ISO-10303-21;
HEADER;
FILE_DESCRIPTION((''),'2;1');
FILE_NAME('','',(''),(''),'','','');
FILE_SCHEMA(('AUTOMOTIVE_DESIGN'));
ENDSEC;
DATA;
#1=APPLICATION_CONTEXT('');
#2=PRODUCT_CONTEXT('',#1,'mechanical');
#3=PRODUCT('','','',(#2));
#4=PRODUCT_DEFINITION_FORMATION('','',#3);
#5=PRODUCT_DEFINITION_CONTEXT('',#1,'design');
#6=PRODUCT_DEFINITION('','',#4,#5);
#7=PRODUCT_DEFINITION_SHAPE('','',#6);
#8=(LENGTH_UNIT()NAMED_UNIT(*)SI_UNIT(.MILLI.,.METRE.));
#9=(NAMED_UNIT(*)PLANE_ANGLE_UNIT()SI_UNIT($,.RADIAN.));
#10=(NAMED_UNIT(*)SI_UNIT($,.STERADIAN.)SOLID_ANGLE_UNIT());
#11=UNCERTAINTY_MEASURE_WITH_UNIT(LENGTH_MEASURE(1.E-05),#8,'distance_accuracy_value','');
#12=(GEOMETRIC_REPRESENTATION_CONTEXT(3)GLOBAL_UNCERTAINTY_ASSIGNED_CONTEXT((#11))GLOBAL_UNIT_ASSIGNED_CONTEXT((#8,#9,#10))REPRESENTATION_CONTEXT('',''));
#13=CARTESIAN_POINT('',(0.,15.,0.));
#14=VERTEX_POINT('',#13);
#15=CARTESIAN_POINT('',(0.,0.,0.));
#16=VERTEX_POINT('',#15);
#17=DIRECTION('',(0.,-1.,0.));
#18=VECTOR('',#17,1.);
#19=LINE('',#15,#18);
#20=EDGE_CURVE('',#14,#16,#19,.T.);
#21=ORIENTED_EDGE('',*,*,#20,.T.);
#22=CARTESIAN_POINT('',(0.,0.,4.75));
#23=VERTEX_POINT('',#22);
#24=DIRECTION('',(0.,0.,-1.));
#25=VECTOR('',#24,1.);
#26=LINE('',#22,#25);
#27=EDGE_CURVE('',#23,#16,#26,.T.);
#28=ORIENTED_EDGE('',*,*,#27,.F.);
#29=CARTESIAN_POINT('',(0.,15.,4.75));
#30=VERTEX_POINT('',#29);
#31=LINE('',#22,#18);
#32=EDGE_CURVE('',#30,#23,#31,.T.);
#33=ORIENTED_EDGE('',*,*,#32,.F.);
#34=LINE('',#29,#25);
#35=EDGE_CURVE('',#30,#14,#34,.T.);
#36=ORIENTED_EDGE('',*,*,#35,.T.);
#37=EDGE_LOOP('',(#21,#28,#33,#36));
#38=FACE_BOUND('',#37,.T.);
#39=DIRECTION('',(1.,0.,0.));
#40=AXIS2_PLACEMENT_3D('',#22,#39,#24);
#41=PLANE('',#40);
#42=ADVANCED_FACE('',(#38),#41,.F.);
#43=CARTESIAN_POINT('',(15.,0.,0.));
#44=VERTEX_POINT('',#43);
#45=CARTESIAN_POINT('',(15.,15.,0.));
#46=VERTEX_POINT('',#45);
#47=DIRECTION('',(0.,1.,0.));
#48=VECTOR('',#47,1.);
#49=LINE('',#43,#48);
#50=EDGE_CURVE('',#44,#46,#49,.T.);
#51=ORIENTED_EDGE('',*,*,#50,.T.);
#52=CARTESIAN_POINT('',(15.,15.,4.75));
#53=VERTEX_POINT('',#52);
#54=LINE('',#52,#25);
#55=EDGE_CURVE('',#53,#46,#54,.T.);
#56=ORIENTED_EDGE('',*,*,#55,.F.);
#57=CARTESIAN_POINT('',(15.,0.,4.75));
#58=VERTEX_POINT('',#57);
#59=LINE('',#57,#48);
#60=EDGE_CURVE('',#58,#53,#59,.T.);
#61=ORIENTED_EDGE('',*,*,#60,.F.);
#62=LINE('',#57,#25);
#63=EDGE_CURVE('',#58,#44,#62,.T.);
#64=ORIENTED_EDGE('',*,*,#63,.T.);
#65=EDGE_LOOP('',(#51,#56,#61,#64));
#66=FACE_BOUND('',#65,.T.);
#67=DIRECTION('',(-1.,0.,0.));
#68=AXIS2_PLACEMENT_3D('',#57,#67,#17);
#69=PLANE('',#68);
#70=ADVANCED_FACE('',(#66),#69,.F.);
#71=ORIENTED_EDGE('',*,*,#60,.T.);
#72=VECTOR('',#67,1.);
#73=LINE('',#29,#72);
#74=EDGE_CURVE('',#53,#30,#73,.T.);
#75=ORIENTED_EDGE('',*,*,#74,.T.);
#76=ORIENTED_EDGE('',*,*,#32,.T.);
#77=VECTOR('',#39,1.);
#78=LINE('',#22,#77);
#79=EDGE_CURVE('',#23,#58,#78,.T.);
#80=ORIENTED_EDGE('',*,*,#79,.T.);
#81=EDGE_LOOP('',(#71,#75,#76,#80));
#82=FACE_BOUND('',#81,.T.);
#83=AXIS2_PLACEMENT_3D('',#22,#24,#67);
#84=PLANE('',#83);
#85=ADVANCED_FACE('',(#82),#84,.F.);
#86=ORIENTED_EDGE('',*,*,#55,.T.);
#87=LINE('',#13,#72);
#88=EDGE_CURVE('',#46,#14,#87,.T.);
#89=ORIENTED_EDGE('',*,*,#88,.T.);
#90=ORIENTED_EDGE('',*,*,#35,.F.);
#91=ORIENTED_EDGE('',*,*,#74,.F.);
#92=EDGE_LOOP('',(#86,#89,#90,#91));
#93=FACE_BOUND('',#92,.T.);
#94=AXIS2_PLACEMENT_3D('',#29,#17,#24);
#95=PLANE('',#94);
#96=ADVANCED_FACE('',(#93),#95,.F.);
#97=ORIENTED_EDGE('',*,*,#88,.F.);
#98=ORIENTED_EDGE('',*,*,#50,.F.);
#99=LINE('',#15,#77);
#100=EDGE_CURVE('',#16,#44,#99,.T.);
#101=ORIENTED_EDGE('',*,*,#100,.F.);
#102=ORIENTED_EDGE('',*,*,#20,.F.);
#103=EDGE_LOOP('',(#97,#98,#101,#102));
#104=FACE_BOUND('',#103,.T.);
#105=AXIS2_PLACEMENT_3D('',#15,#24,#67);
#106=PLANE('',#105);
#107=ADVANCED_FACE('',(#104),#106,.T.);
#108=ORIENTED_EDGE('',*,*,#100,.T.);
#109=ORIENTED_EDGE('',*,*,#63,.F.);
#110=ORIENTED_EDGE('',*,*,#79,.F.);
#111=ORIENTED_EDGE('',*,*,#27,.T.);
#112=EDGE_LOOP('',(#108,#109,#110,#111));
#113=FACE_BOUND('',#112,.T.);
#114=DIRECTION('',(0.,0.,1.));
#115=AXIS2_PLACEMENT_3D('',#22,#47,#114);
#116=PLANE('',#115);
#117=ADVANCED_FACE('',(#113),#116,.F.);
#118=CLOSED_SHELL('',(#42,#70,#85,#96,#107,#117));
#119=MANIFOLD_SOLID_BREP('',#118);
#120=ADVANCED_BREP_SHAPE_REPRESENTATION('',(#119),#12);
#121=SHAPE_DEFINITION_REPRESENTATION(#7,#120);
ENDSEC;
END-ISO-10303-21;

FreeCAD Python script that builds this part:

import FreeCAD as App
import Part
import Sketcher

V = App.Vector


def add_polygon(sketch, points):
    """Adds a closed chain of lines whose ends are joined by coincident constraints."""
    first, n = sketch.GeometryCount, len(points)
    for a, b in zip(points, points[1:] + points[:1]):
        sketch.addGeometry(Part.LineSegment(App.Vector(*a, 0), App.Vector(*b, 0)), False)
    for i in range(n):
        sketch.addConstraint(Sketcher.Constraint("Coincident", first + i, 2, first + (i + 1) % n, 1))

doc = App.newDocument("Part")
body = doc.addObject("PartDesign::Body", "Body")

# Sketch on XY plane
sketch1 = doc.addObject("Sketcher::SketchObject", "Sketch")
body.addObject(sketch1)
sketch1.AttachmentSupport = (doc.XY_Plane, [""])
sketch1.MapMode = "FlatFace"
add_polygon(sketch1, [(0, 15), (0, 0), (15, 0), (15, 15)])  # lines 0-3
sketch1.addConstraint([
    Sketcher.Constraint("Vertical", 0),
    Sketcher.Constraint("Horizontal", 1),
    Sketcher.Constraint("Vertical", 2),
    Sketcher.Constraint("Horizontal", 3),
    Sketcher.Constraint("Coincident", 0, 2, -1, 1),
    Sketcher.Constraint("Equal", 3, 0),
    Sketcher.Constraint("DistanceX", 1, 1, 1, 2, 15.0),
])
pad1 = doc.addObject("PartDesign::Pad", "Pad")
body.addObject(pad1)
pad1.Profile = sketch1
pad1.Length = 4.75

doc.recompute()
